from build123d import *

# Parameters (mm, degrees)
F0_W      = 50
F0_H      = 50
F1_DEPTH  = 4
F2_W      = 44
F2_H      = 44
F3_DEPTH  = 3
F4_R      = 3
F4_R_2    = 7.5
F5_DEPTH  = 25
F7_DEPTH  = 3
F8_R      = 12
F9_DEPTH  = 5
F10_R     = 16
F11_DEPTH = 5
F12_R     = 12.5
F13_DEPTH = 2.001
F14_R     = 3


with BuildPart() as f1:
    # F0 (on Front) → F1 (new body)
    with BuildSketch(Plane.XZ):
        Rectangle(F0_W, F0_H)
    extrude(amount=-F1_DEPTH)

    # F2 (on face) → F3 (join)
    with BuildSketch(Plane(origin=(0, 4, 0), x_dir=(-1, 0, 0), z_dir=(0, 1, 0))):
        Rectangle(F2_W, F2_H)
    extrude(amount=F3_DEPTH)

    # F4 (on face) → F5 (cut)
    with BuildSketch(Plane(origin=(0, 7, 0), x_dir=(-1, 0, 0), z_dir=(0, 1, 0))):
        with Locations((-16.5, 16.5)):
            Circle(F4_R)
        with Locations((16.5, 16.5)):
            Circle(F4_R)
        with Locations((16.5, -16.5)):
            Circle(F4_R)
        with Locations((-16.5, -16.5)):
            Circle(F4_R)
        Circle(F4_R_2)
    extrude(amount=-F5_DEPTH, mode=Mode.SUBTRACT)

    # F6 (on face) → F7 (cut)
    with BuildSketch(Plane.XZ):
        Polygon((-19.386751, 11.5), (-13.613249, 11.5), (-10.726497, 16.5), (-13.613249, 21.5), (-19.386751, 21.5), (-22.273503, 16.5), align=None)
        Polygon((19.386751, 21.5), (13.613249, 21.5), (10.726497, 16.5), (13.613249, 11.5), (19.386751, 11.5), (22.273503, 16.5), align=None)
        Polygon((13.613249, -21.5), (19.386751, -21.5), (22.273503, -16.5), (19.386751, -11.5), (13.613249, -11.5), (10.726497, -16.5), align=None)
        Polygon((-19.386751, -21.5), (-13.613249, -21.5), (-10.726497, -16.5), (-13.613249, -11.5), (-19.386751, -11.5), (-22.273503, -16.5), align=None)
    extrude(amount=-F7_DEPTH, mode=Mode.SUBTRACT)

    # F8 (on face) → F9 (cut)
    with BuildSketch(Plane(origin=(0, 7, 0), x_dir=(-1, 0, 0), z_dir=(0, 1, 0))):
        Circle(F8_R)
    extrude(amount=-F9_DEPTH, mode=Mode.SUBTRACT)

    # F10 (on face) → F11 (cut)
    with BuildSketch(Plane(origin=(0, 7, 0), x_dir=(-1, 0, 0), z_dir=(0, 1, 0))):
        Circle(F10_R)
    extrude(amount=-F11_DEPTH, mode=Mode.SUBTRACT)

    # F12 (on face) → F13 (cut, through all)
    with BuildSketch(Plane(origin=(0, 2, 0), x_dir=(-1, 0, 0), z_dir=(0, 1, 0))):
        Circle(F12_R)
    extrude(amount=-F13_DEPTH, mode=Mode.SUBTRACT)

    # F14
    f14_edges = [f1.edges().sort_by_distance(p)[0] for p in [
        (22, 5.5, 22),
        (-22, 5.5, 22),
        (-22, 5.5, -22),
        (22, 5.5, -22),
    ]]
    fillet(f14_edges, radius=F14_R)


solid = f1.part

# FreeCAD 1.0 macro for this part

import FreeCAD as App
import Part
import Sketcher
Q = App.Units.Quantity


def edges_at(feature, points):
    """Names of the edges that pass closest to the given points."""
    edges = feature.Shape.Edges
    near = lambda p: min(range(len(edges)), key=lambda i: edges[i].distToShape(Part.Vertex(*p))[0])
    return sorted({f"Edge{near(p) + 1}" for p in points})


def add_polygon(sketch, points):
    """Adds a closed chain of lines whose ends are joined by coincident constraints."""
    first, n = sketch.GeometryCount, len(points)
    for a, b in zip(points, points[1:] + points[:1]):
        sketch.addGeometry(Part.LineSegment(App.Vector(*a, 0), App.Vector(*b, 0)), False)
    for i in range(n):
        sketch.addConstraint(Sketcher.Constraint("Coincident", first + i, 2, first + (i + 1) % n, 1))

doc = App.newDocument("Part")
body = doc.addObject("PartDesign::Body", "Body")

# Sketch on XZ plane
sketch1 = body.newObject("Sketcher::SketchObject", "Sketch")
sketch1.AttachmentSupport = (doc.getObject("XZ_Plane"), [""])
sketch1.MapMode = "FlatFace"
add_polygon(sketch1, [(-25, 25), (-25, -25), (25, -25), (25, 25)])  # lines 0-3
sketch1.addConstraint(Sketcher.Constraint("Vertical", 0))
sketch1.addConstraint(Sketcher.Constraint("Horizontal", 1))
sketch1.addConstraint(Sketcher.Constraint("Vertical", 2))
sketch1.addConstraint(Sketcher.Constraint("Horizontal", 3))
sketch1.addConstraint(Sketcher.Constraint("Symmetric", 0, 2, 2, 2, -1, 1))
sketch1.addConstraint(Sketcher.Constraint("Equal", 3, 0))
sketch1.addConstraint(Sketcher.Constraint("DistanceX", 1, 1, 1, 2, 50.0))
pad1 = body.newObject("PartDesign::Pad", "Pad")
pad1.Profile = sketch1
pad1.Length = 4
pad1.Reversed = True

# Sketch on XZ plane
sketch2 = body.newObject("Sketcher::SketchObject", "Sketch001")
sketch2.AttachmentSupport = (doc.getObject("XZ_Plane"), [""])
sketch2.MapMode = "FlatFace"
sketch2.AttachmentOffset = App.Placement(App.Vector(0, 0, -4), App.Rotation())
add_polygon(sketch2, [(22, 22), (22, -22), (-22, -22), (-22, 22)])  # lines 0-3
sketch2.addConstraint(Sketcher.Constraint("Vertical", 0))
sketch2.addConstraint(Sketcher.Constraint("Horizontal", 1))
sketch2.addConstraint(Sketcher.Constraint("Vertical", 2))
sketch2.addConstraint(Sketcher.Constraint("Horizontal", 3))
sketch2.addConstraint(Sketcher.Constraint("Symmetric", 0, 2, 2, 2, -1, 1))
sketch2.addConstraint(Sketcher.Constraint("Equal", 3, 0))
sketch2.addConstraint(Sketcher.Constraint("DistanceX", 1, 2, 1, 1, 44.0))
pad2 = body.newObject("PartDesign::Pad", "Pad001")
pad2.Profile = sketch2
pad2.Length = 3
pad2.Reversed = True

# Sketch on XZ plane
sketch3 = body.newObject("Sketcher::SketchObject", "Sketch002")
sketch3.AttachmentSupport = (doc.getObject("XZ_Plane"), [""])
sketch3.MapMode = "FlatFace"
sketch3.AttachmentOffset = App.Placement(App.Vector(0, 0, -7), App.Rotation())
sketch3.addGeometry(Part.Circle(App.Vector(16.5, 16.5, 0), App.Vector(0, 0, 1), 3), False)
sketch3.addGeometry(Part.Circle(App.Vector(-16.5, 16.5, 0), App.Vector(0, 0, 1), 3), False)
sketch3.addGeometry(Part.Circle(App.Vector(-16.5, -16.5, 0), App.Vector(0, 0, 1), 3), False)
sketch3.addGeometry(Part.Circle(App.Vector(16.5, -16.5, 0), App.Vector(0, 0, 1), 3), False)
sketch3.addGeometry(Part.Circle(App.Vector(0, 0, 0), App.Vector(0, 0, 1), 7.5), False)
sketch3.addConstraint(Sketcher.Constraint("Coincident", 4, 3, -1, 1))
sketch3.addConstraint(Sketcher.Constraint("Equal", 0, 1))
sketch3.addConstraint(Sketcher.Constraint("Equal", 1, 2))
sketch3.addConstraint(Sketcher.Constraint("Equal", 2, 3))
sketch3.addConstraint(Sketcher.Constraint("Symmetric", 0, 3, 2, 3, -1, 1))
sketch3.addConstraint(Sketcher.Constraint("Symmetric", 1, 3, 3, 3, -1, 1))
sketch3.addConstraint(Sketcher.Constraint("Symmetric", 0, 3, 1, 3, -2))
sketch3.addConstraint(Sketcher.Constraint("Diameter", 0, 6.0))
sketch3.addConstraint(Sketcher.Constraint("Diameter", 4, 15.0))
sketch3.addConstraint(Sketcher.Constraint("DistanceX", 1, 3, 0, 3, 33.0))
sketch3.addConstraint(Sketcher.Constraint("DistanceY", 2, 3, 1, 3, 33.0))
pocket1 = body.newObject("PartDesign::Pocket", "Pocket")
pocket1.Profile = sketch3
pocket1.Length = 25
pocket1.Reversed = True

# Sketch on XZ plane
sketch4 = body.newObject("Sketcher::SketchObject", "Sketch003")
sketch4.AttachmentSupport = (doc.getObject("XZ_Plane"), [""])
sketch4.MapMode = "FlatFace"
add_polygon(sketch4, [(-19.386751, 11.5), (-13.613249, 11.5), (-10.726497, 16.5), (-13.613249, 21.5), (-19.386751, 21.5), (-22.273503, 16.5)])  # lines 0-5
add_polygon(sketch4, [(19.386751, 21.5), (13.613249, 21.5), (10.726497, 16.5), (13.613249, 11.5), (19.386751, 11.5), (22.273503, 16.5)])  # lines 6-11
add_polygon(sketch4, [(13.613249, -21.5), (19.386751, -21.5), (22.273503, -16.5), (19.386751, -11.5), (13.613249, -11.5), (10.726497, -16.5)])  # lines 12-17
add_polygon(sketch4, [(-19.386751, -21.5), (-13.613249, -21.5), (-10.726497, -16.5), (-13.613249, -11.5), (-19.386751, -11.5), (-22.273503, -16.5)])  # lines 18-23
sketch4.addConstraint(Sketcher.Constraint("Horizontal", 0))
sketch4.addConstraint(Sketcher.Constraint("Horizontal", 3))
sketch4.addConstraint(Sketcher.Constraint("Horizontal", 6))
sketch4.addConstraint(Sketcher.Constraint("Horizontal", 9))
sketch4.addConstraint(Sketcher.Constraint("Horizontal", 12))
sketch4.addConstraint(Sketcher.Constraint("Horizontal", 15))
sketch4.addConstraint(Sketcher.Constraint("Horizontal", 18))
sketch4.addConstraint(Sketcher.Constraint("Horizontal", 21))
sketch4.addConstraint(Sketcher.Constraint("Symmetric", 3, 2, 12, 2, -1, 1))
sketch4.addConstraint(Sketcher.Constraint("Symmetric", 4, 2, 13, 2, -1, 1))
sketch4.addConstraint(Sketcher.Constraint("Symmetric", 5, 2, 14, 2, -1, 1))
sketch4.addConstraint(Sketcher.Constraint("Symmetric", 1, 2, 16, 2, -1, 1))
sketch4.addConstraint(Sketcher.Constraint("Symmetric", 6, 2, 18, 2, -1, 1))
sketch4.addConstraint(Sketcher.Constraint("Symmetric", 7, 2, 19, 2, -1, 1))
sketch4.addConstraint(Sketcher.Constraint("Symmetric", 8, 2, 20, 2, -1, 1))
sketch4.addConstraint(Sketcher.Constraint("Symmetric", 10, 2, 22, 2, -1, 1))
sketch4.addConstraint(Sketcher.Constraint("Symmetric", 2, 2, 6, 2, -2))
sketch4.addConstraint(Sketcher.Constraint("Symmetric", 1, 2, 7, 2, -2))
sketch4.addConstraint(Sketcher.Constraint("Symmetric", 0, 2, 8, 2, -2))
sketch4.addConstraint(Sketcher.Constraint("Symmetric", 4, 2, 10, 2, -2))
sketch4.addConstraint(Sketcher.Constraint("Parallel", 1, 4))
sketch4.addConstraint(Sketcher.Constraint("Parallel", 2, 5))
sketch4.addConstraint(Sketcher.Constraint("Parallel", 4, 7))
sketch4.addConstraint(Sketcher.Constraint("Parallel", 7, 10))
sketch4.addConstraint(Sketcher.Constraint("Parallel", 8, 11))
sketch4.addConstraint(Sketcher.Constraint("Parallel", 13, 16))
sketch4.addConstraint(Sketcher.Constraint("Parallel", 14, 17))
sketch4.addConstraint(Sketcher.Constraint("Parallel", 19, 22))
sketch4.addConstraint(Sketcher.Constraint("Parallel", 20, 23))
sketch4.addConstraint(Sketcher.Constraint("Horizontal", 1, 2, 4, 2))
sketch4.addConstraint(Sketcher.Constraint("Vertical", 0, 2, 2, 2))
sketch4.addConstraint(Sketcher.Constraint("Angle", 1, Q("59.999994 deg")))
sketch4.addConstraint(Sketcher.Constraint("DistanceY", 0, 2, 1, 2, 5.0))
sketch4.addConstraint(Sketcher.Constraint("DistanceX", 3, 2, 6, 2, 33.0))
sketch4.addConstraint(Sketcher.Constraint("DistanceY", 12, 2, 9, 2, 33.0))
sketch4.addConstraint(Sketcher.Constraint("DistanceX", 0, 1, 0, 2, 5.773502))
pocket2 = body.newObject("PartDesign::Pocket", "Pocket001")
pocket2.Profile = sketch4
pocket2.Length = 3

# Sketch on XZ plane
sketch5 = body.newObject("Sketcher::SketchObject", "Sketch004")
sketch5.AttachmentSupport = (doc.getObject("XZ_Plane"), [""])
sketch5.MapMode = "FlatFace"
sketch5.AttachmentOffset = App.Placement(App.Vector(0, 0, -7), App.Rotation())
sketch5.addGeometry(Part.Circle(App.Vector(0, 0, 0), App.Vector(0, 0, 1), 12), False)
sketch5.addConstraint(Sketcher.Constraint("Coincident", 0, 3, -1, 1))
sketch5.addConstraint(Sketcher.Constraint("Diameter", 0, 24.0))
pocket3 = body.newObject("PartDesign::Pocket", "Pocket002")
pocket3.Profile = sketch5
pocket3.Length = 5
pocket3.Reversed = True

# Sketch on XZ plane
sketch6 = body.newObject("Sketcher::SketchObject", "Sketch005")
sketch6.AttachmentSupport = (doc.getObject("XZ_Plane"), [""])
sketch6.MapMode = "FlatFace"
sketch6.AttachmentOffset = App.Placement(App.Vector(0, 0, -7), App.Rotation())
sketch6.addGeometry(Part.Circle(App.Vector(0, 0, 0), App.Vector(0, 0, 1), 16), False)
sketch6.addConstraint(Sketcher.Constraint("Coincident", 0, 3, -1, 1))
sketch6.addConstraint(Sketcher.Constraint("Diameter", 0, 32.0))
pocket4 = body.newObject("PartDesign::Pocket", "Pocket003")
pocket4.Profile = sketch6
pocket4.Length = 5
pocket4.Reversed = True

# Sketch on XZ plane
sketch7 = body.newObject("Sketcher::SketchObject", "Sketch006")
sketch7.AttachmentSupport = (doc.getObject("XZ_Plane"), [""])
sketch7.MapMode = "FlatFace"
sketch7.AttachmentOffset = App.Placement(App.Vector(0, 0, -2), App.Rotation())
sketch7.addGeometry(Part.Circle(App.Vector(0, 0, 0), App.Vector(0, 0, 1), 12.5), False)
sketch7.addConstraint(Sketcher.Constraint("Coincident", 0, 3, -1, 1))
sketch7.addConstraint(Sketcher.Constraint("Diameter", 0, 25.0))
pocket5 = body.newObject("PartDesign::Pocket", "Pocket004")
pocket5.Profile = sketch7
pocket5.Type = "ThroughAll"
pocket5.Reversed = True
doc.recompute()

fillet = body.newObject("PartDesign::Fillet", "Fillet")
fillet.Base = (pocket5, edges_at(pocket5, [
    (22, 5.5, 22),
    (-22, 5.5, 22),
    (-22, 5.5, -22),
    (22, 5.5, -22),
]))
fillet.Radius = 3

doc.recompute()
